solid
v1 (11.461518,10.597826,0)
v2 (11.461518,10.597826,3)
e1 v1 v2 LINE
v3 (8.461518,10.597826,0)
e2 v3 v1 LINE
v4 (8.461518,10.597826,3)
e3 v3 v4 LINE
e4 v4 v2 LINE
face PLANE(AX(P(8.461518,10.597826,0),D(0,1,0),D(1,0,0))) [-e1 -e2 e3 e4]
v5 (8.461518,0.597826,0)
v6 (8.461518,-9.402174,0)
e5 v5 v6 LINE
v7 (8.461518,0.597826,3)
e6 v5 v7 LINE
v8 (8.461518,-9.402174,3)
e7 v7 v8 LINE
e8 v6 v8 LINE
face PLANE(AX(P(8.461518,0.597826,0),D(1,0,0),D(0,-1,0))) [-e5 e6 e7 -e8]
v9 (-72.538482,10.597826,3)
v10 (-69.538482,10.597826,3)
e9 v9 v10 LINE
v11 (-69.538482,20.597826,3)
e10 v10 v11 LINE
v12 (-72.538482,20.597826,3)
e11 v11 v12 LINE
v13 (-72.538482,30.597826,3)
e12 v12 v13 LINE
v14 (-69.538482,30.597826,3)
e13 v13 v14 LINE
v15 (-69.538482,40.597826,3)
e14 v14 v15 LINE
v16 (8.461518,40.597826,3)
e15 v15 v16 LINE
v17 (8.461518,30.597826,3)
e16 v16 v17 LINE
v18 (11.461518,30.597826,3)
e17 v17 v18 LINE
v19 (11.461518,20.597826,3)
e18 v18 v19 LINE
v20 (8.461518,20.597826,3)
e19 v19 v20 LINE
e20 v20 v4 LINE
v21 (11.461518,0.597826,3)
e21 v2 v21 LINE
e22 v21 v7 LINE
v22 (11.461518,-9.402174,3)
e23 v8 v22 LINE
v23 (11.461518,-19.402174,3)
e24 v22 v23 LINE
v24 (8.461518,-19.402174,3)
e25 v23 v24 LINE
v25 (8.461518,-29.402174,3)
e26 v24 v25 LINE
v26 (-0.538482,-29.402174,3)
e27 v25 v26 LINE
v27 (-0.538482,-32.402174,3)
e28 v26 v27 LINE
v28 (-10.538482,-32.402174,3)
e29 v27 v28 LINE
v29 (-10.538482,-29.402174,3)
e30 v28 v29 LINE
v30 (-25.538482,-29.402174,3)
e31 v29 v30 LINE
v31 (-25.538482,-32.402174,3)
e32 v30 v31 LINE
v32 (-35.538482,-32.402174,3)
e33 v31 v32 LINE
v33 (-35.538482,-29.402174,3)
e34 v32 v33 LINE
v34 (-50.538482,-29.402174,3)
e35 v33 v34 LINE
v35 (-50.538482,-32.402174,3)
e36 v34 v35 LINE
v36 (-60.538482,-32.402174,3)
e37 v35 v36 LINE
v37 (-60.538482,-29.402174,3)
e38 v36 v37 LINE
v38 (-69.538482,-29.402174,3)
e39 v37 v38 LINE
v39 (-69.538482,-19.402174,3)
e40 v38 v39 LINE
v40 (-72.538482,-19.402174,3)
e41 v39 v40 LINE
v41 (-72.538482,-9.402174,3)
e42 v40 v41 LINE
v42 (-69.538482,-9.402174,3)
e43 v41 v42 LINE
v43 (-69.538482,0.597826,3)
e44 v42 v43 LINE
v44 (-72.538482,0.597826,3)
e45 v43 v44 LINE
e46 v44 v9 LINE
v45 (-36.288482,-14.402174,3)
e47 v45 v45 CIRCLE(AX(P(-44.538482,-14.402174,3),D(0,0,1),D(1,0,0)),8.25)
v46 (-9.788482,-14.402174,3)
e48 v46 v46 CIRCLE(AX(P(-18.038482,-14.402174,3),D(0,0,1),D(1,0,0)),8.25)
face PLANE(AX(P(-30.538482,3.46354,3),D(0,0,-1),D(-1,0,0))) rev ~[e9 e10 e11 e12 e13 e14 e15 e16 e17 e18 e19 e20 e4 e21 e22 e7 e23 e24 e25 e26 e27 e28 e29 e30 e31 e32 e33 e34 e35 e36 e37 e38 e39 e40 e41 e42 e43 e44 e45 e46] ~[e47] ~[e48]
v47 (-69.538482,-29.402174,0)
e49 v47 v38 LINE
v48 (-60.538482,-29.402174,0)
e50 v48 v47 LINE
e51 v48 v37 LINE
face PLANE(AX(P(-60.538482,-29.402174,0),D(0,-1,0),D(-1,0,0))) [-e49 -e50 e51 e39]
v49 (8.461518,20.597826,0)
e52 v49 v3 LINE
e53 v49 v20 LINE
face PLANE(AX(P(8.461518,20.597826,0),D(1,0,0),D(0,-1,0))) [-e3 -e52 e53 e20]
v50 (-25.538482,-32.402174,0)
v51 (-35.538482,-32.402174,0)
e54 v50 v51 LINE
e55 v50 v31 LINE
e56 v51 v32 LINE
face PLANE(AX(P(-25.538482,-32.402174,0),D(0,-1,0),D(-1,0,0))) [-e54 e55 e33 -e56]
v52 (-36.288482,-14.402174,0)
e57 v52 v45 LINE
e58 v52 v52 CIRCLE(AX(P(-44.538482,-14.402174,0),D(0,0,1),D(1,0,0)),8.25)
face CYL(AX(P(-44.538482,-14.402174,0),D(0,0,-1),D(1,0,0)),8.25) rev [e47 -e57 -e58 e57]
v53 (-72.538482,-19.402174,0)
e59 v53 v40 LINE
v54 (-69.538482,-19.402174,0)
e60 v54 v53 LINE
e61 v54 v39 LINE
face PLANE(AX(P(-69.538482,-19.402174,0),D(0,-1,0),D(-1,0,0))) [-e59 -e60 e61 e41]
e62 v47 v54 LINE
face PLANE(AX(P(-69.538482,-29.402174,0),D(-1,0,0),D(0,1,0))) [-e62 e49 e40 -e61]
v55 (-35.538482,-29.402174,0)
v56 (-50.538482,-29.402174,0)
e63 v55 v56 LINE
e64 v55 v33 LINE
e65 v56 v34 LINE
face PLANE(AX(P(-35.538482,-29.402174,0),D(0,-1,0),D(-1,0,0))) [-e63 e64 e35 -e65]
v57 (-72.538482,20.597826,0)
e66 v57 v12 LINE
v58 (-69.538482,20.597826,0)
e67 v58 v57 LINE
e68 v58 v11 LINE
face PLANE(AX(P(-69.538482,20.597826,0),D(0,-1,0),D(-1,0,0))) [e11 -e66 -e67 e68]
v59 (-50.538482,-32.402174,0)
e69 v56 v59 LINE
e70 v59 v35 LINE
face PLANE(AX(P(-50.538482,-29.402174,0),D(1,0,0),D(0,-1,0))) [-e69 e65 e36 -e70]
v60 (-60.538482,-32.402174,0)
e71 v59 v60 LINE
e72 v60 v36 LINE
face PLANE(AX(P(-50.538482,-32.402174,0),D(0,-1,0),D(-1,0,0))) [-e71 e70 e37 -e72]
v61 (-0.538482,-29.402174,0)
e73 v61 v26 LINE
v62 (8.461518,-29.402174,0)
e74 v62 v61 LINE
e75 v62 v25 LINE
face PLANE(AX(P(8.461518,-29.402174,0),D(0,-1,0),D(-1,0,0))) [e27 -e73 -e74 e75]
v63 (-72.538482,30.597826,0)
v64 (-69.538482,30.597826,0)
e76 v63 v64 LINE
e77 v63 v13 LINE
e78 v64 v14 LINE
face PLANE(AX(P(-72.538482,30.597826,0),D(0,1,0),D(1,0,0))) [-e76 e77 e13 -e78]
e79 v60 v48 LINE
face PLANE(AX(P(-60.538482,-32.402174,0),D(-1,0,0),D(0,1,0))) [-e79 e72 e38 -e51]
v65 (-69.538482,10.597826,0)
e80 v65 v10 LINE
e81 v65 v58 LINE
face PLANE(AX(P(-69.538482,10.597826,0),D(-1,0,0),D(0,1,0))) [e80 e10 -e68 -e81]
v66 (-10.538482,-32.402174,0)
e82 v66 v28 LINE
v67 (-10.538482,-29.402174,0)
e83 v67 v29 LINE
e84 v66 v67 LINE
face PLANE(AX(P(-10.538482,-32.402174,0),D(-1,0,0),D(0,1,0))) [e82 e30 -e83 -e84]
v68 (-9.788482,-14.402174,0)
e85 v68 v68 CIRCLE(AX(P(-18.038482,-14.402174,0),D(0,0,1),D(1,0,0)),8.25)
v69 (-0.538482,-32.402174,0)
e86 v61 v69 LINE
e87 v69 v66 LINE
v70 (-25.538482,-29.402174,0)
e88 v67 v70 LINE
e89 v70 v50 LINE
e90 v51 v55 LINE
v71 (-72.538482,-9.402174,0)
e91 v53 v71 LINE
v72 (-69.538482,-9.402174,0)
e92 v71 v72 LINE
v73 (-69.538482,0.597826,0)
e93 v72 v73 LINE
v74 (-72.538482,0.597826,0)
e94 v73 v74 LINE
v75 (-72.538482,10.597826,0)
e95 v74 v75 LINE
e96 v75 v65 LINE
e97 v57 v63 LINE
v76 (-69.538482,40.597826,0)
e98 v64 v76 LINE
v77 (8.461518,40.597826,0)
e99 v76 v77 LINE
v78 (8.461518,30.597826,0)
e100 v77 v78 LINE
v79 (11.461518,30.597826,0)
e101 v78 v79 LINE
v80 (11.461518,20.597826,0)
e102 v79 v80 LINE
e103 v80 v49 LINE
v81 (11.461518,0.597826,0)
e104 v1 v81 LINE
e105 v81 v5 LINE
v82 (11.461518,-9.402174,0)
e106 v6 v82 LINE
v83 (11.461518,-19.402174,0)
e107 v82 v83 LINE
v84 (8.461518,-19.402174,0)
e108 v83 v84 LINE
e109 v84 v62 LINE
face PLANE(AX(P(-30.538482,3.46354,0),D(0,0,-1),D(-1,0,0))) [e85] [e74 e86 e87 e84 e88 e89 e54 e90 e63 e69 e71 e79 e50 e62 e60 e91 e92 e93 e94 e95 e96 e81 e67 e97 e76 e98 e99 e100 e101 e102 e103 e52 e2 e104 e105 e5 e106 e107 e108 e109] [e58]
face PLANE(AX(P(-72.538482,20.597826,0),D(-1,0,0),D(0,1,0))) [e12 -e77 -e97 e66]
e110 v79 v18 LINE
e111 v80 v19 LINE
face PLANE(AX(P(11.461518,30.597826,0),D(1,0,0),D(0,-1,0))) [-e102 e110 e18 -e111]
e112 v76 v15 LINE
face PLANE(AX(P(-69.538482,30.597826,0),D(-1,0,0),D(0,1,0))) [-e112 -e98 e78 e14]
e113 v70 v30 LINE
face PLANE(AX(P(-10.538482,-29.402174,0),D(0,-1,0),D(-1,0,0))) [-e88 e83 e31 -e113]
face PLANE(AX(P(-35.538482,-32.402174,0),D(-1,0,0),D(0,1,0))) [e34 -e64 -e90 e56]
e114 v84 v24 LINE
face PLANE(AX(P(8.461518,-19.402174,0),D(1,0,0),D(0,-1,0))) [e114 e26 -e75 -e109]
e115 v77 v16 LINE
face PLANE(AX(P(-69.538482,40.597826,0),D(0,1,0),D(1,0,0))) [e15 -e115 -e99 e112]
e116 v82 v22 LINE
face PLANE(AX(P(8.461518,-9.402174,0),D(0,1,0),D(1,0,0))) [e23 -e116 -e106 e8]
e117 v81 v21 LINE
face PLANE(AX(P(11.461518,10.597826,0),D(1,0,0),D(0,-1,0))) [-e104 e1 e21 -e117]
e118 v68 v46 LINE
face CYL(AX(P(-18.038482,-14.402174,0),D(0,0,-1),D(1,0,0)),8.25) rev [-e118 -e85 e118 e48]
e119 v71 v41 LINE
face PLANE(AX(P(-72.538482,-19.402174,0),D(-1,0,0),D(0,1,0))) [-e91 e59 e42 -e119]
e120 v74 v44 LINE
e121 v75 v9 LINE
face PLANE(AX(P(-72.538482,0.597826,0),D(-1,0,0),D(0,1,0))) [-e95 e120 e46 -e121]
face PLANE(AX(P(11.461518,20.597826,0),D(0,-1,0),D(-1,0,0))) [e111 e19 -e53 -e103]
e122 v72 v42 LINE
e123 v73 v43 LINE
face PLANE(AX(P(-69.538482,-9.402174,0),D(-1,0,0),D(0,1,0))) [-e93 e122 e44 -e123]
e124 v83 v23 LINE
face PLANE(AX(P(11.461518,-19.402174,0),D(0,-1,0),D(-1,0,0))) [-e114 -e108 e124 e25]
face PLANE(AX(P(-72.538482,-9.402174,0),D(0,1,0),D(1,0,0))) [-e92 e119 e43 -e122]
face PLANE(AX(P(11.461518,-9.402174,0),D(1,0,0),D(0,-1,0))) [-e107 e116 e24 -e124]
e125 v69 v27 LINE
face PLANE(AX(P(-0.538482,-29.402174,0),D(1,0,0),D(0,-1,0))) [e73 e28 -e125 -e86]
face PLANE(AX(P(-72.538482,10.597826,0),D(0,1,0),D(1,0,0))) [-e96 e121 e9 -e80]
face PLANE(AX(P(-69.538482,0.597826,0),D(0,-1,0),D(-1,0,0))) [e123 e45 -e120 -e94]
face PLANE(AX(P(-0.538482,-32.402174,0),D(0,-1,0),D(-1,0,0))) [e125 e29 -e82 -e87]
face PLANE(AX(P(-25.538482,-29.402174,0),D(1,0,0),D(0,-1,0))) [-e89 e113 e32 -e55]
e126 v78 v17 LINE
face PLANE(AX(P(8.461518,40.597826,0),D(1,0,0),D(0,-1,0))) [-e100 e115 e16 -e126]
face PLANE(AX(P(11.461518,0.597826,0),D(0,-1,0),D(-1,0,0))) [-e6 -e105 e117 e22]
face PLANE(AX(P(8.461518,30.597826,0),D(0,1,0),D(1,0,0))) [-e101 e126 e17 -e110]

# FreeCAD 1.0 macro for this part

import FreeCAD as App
import Part
import Sketcher

doc = App.newDocument("Part")
params = doc.addObject("Spreadsheet::Sheet", "Params")
for row, (alias, value) in enumerate([
    ("sketch1_diameter", "16.5 mm"),
    ("sketch1_width", "78 mm"),
    ("sketch1_width2", "3 mm"),
    ("sketch1_width3", "9 mm"),
    ("sketch1_width4", "10 mm"),
    ("pad1_length", "3 mm"),
], start=1):
    params.set(f"A{row}", alias)
    params.set(f"B{row}", "=" + value)
    params.setAlias(f"B{row}", alias)

body = doc.addObject("PartDesign::Body", "Body")

sketch1 = body.newObject("Sketcher::SketchObject", "Sketch")
sketch1.AttachmentSupport = (doc.getObject("XY_Plane"), [""])
sketch1.MapMode = "FlatFace"
sketch1.addGeometry(Part.LineSegment(App.Vector(8.5, 40.6, 0), App.Vector(-69.5, 40.6, 0)), False)
sketch1.addGeometry(Part.LineSegment(App.Vector(-69.5, 40.6, 0), App.Vector(-69.5, 30.6, 0)), False)
sketch1.addGeometry(Part.LineSegment(App.Vector(-69.5, 30.6, 0), App.Vector(-72.5, 30.6, 0)), False)
sketch1.addGeometry(Part.LineSegment(App.Vector(-72.5, 30.6, 0), App.Vector(-72.5, 20.6, 0)), False)
sketch1.addGeometry(Part.LineSegment(App.Vector(-72.5, 20.6, 0), App.Vector(-69.5, 20.6, 0)), False)
sketch1.addGeometry(Part.LineSegment(App.Vector(-69.5, 20.6, 0), App.Vector(-69.5, 10.6, 0)), False)
sketch1.addGeometry(Part.LineSegment(App.Vector(-69.5, 10.6, 0), App.Vector(-72.5, 10.6, 0)), False)
sketch1.addGeometry(Part.LineSegment(App.Vector(-72.5, 10.6, 0), App.Vector(-72.5, 0.6, 0)), False)
sketch1.addGeometry(Part.LineSegment(App.Vector(-72.5, 0.6, 0), App.Vector(-69.5, 0.6, 0)), False)
sketch1.addGeometry(Part.LineSegment(App.Vector(-69.5, 0.6, 0), App.Vector(-69.5, -9.4, 0)), False)
sketch1.addGeometry(Part.LineSegment(App.Vector(-69.5, -9.4, 0), App.Vector(-72.5, -9.4, 0)), False)
sketch1.addGeometry(Part.LineSegment(App.Vector(-72.5, -9.4, 0), App.Vector(-72.5, -19.4, 0)), False)
sketch1.addGeometry(Part.LineSegment(App.Vector(-72.5, -19.4, 0), App.Vector(-69.5, -19.4, 0)), False)
sketch1.addGeometry(Part.LineSegment(App.Vector(-69.5, -19.4, 0), App.Vector(-69.5, -29.4, 0)), False)
sketch1.addGeometry(Part.LineSegment(App.Vector(-69.5, -29.4, 0), App.Vector(-60.5, -29.4, 0)), False)
sketch1.addGeometry(Part.LineSegment(App.Vector(-60.5, -29.4, 0), App.Vector(-60.5, -32.4, 0)), False)
sketch1.addGeometry(Part.LineSegment(App.Vector(-60.5, -32.4, 0), App.Vector(-50.5, -32.4, 0)), False)
sketch1.addGeometry(Part.LineSegment(App.Vector(-50.5, -32.4, 0), App.Vector(-50.5, -29.4, 0)), False)
sketch1.addGeometry(Part.LineSegment(App.Vector(-50.5, -29.4, 0), App.Vector(-35.5, -29.4, 0)), False)
sketch1.addGeometry(Part.LineSegment(App.Vector(-35.5, -29.4, 0), App.Vector(-35.5, -32.4, 0)), False)
sketch1.addGeometry(Part.LineSegment(App.Vector(-35.5, -32.4, 0), App.Vector(-25.5, -32.4, 0)), False)
sketch1.addGeometry(Part.LineSegment(App.Vector(-25.5, -32.4, 0), App.Vector(-25.5, -29.4, 0)), False)
sketch1.addGeometry(Part.LineSegment(App.Vector(-25.5, -29.4, 0), App.Vector(-10.5, -29.4, 0)), False)
sketch1.addGeometry(Part.LineSegment(App.Vector(-10.5, -29.4, 0), App.Vector(-10.5, -32.4, 0)), False)
sketch1.addGeometry(Part.LineSegment(App.Vector(-10.5, -32.4, 0), App.Vector(-0.5, -32.4, 0)), False)
sketch1.addGeometry(Part.LineSegment(App.Vector(-0.5, -32.4, 0), App.Vector(-0.5, -29.4, 0)), False)
sketch1.addGeometry(Part.LineSegment(App.Vector(-0.5, -29.4, 0), App.Vector(8.5, -29.4, 0)), False)
sketch1.addGeometry(Part.LineSegment(App.Vector(8.5, -29.4, 0), App.Vector(8.5, -19.4, 0)), False)
sketch1.addGeometry(Part.LineSegment(App.Vector(8.5, -19.4, 0), App.Vector(11.5, -19.4, 0)), False)
sketch1.addGeometry(Part.LineSegment(App.Vector(11.5, -19.4, 0), App.Vector(11.5, -9.4, 0)), False)
sketch1.addGeometry(Part.LineSegment(App.Vector(11.5, -9.4, 0), App.Vector(8.5, -9.4, 0)), False)
sketch1.addGeometry(Part.LineSegment(App.Vector(8.5, -9.4, 0), App.Vector(8.5, 0.6, 0)), False)
sketch1.addGeometry(Part.LineSegment(App.Vector(8.5, 0.6, 0), App.Vector(11.5, 0.6, 0)), False)
sketch1.addGeometry(Part.LineSegment(App.Vector(11.5, 0.6, 0), App.Vector(11.5, 10.6, 0)), False)
sketch1.addGeometry(Part.LineSegment(App.Vector(11.5, 10.6, 0), App.Vector(8.5, 10.6, 0)), False)
sketch1.addGeometry(Part.LineSegment(App.Vector(8.5, 10.6, 0), App.Vector(8.5, 20.6, 0)), False)
sketch1.addGeometry(Part.LineSegment(App.Vector(8.5, 20.6, 0), App.Vector(11.5, 20.6, 0)), False)
sketch1.addGeometry(Part.LineSegment(App.Vector(11.5, 20.6, 0), App.Vector(11.5, 30.6, 0)), False)
sketch1.addGeometry(Part.LineSegment(App.Vector(11.5, 30.6, 0), App.Vector(8.5, 30.6, 0)), False)
sketch1.addGeometry(Part.LineSegment(App.Vector(8.5, 30.6, 0), App.Vector(8.5, 40.6, 0)), False)
sketch1.addGeometry(Part.Circle(App.Vector(-18, -14.4, 0), App.Vector(0, 0, 1), 8.2), False)
sketch1.addGeometry(Part.Circle(App.Vector(-44.5, -14.4, 0), App.Vector(0, 0, 1), 8.2), False)
sketch1.addConstraint(Sketcher.Constraint("Coincident", 0, 2, 1, 1))
sketch1.addConstraint(Sketcher.Constraint("Coincident", 1, 2, 2, 1))
sketch1.addConstraint(Sketcher.Constraint("Coincident", 2, 2, 3, 1))
sketch1.addConstraint(Sketcher.Constraint("Coincident", 3, 2, 4, 1))
sketch1.addConstraint(Sketcher.Constraint("Coincident", 4, 2, 5, 1))
sketch1.addConstraint(Sketcher.Constraint("Coincident", 5, 2, 6, 1))
sketch1.addConstraint(Sketcher.Constraint("Coincident", 6, 2, 7, 1))
sketch1.addConstraint(Sketcher.Constraint("Coincident", 7, 2, 8, 1))
sketch1.addConstraint(Sketcher.Constraint("Coincident", 8, 2, 9, 1))
sketch1.addConstraint(Sketcher.Constraint("Coincident", 9, 2, 10, 1))
sketch1.addConstraint(Sketcher.Constraint("Coincident", 10, 2, 11, 1))
sketch1.addConstraint(Sketcher.Constraint("Coincident", 11, 2, 12, 1))
sketch1.addConstraint(Sketcher.Constraint("Coincident", 12, 2, 13, 1))
sketch1.addConstraint(Sketcher.Constraint("Coincident", 13, 2, 14, 1))
sketch1.addConstraint(Sketcher.Constraint("Coincident", 14, 2, 15, 1))
sketch1.addConstraint(Sketcher.Constraint("Coincident", 15, 2, 16, 1))
sketch1.addConstraint(Sketcher.Constraint("Coincident", 16, 2, 17, 1))
sketch1.addConstraint(Sketcher.Constraint("Coincident", 17, 2, 18, 1))
sketch1.addConstraint(Sketcher.Constraint("Coincident", 18, 2, 19, 1))
sketch1.addConstraint(Sketcher.Constraint("Coincident", 19, 2, 20, 1))
sketch1.addConstraint(Sketcher.Constraint("Coincident", 20, 2, 21, 1))
sketch1.addConstraint(Sketcher.Constraint("Coincident", 21, 2, 22, 1))
sketch1.addConstraint(Sketcher.Constraint("Coincident", 22, 2, 23, 1))
sketch1.addConstraint(Sketcher.Constraint("Coincident", 23, 2, 24, 1))
sketch1.addConstraint(Sketcher.Constraint("Coincident", 24, 2, 25, 1))
sketch1.addConstraint(Sketcher.Constraint("Coincident", 25, 2, 26, 1))
sketch1.addConstraint(Sketcher.Constraint("Coincident", 26, 2, 27, 1))
sketch1.addConstraint(Sketcher.Constraint("Coincident", 27, 2, 28, 1))
sketch1.addConstraint(Sketcher.Constraint("Coincident", 28, 2, 29, 1))
sketch1.addConstraint(Sketcher.Constraint("Coincident", 29, 2, 30, 1))
sketch1.addConstraint(Sketcher.Constraint("Coincident", 30, 2, 31, 1))
sketch1.addConstraint(Sketcher.Constraint("Coincident", 31, 2, 32, 1))
sketch1.addConstraint(Sketcher.Constraint("Coincident", 32, 2, 33, 1))
sketch1.addConstraint(Sketcher.Constraint("Coincident", 33, 2, 34, 1))
sketch1.addConstraint(Sketcher.Constraint("Coincident", 34, 2, 35, 1))
sketch1.addConstraint(Sketcher.Constraint("Coincident", 35, 2, 36, 1))
sketch1.addConstraint(Sketcher.Constraint("Coincident", 36, 2, 37, 1))
sketch1.addConstraint(Sketcher.Constraint("Coincident", 37, 2, 38, 1))
sketch1.addConstraint(Sketcher.Constraint("Coincident", 38, 2, 39, 1))
sketch1.addConstraint(Sketcher.Constraint("Coincident", 39, 2, 0, 1))
sketch1.addConstraint(Sketcher.Constraint("Horizontal", 0))
sketch1.addConstraint(Sketcher.Constraint("Vertical", 1))
sketch1.addConstraint(Sketcher.Constraint("Horizontal", 2))
sketch1.addConstraint(Sketcher.Constraint("Vertical", 3))
sketch1.addConstraint(Sketcher.Constraint("Horizontal", 4))
sketch1.addConstraint(Sketcher.Constraint("Vertical", 5))
sketch1.addConstraint(Sketcher.Constraint("Horizontal", 6))
sketch1.addConstraint(Sketcher.Constraint("Vertical", 7))
sketch1.addConstraint(Sketcher.Constraint("Horizontal", 8))
sketch1.addConstraint(Sketcher.Constraint("Vertical", 9))
sketch1.addConstraint(Sketcher.Constraint("Horizontal", 10))
sketch1.addConstraint(Sketcher.Constraint("Vertical", 11))
sketch1.addConstraint(Sketcher.Constraint("Horizontal", 12))
sketch1.addConstraint(Sketcher.Constraint("Vertical", 13))
sketch1.addConstraint(Sketcher.Constraint("Horizontal", 14))
sketch1.addConstraint(Sketcher.Constraint("Vertical", 15))
sketch1.addConstraint(Sketcher.Constraint("Horizontal", 16))
sketch1.addConstraint(Sketcher.Constraint("Vertical", 17))
sketch1.addConstraint(Sketcher.Constraint("Horizontal", 18))
sketch1.addConstraint(Sketcher.Constraint("Vertical", 19))
sketch1.addConstraint(Sketcher.Constraint("Horizontal", 20))
sketch1.addConstraint(Sketcher.Constraint("Vertical", 21))
sketch1.addConstraint(Sketcher.Constraint("Horizontal", 22))
sketch1.addConstraint(Sketcher.Constraint("Vertical", 23))
sketch1.addConstraint(Sketcher.Constraint("Horizontal", 24))
sketch1.addConstraint(Sketcher.Constraint("Vertical", 25))
sketch1.addConstraint(Sketcher.Constraint("Horizontal", 26))
sketch1.addConstraint(Sketcher.Constraint("Vertical", 27))
sketch1.addConstraint(Sketcher.Constraint("Horizontal", 28))
sketch1.addConstraint(Sketcher.Constraint("Vertical", 29))
sketch1.addConstraint(Sketcher.Constraint("Horizontal", 30))
sketch1.addConstraint(Sketcher.Constraint("Vertical", 31))
sketch1.addConstraint(Sketcher.Constraint("Horizontal", 32))
sketch1.addConstraint(Sketcher.Constraint("Vertical", 33))
sketch1.addConstraint(Sketcher.Constraint("Horizontal", 34))
sketch1.addConstraint(Sketcher.Constraint("Vertical", 35))
sketch1.addConstraint(Sketcher.Constraint("Horizontal", 36))
sketch1.addConstraint(Sketcher.Constraint("Vertical", 37))
sketch1.addConstraint(Sketcher.Constraint("Horizontal", 38))
sketch1.addConstraint(Sketcher.Constraint("Vertical", 39))
sketch1.addConstraint(Sketcher.Constraint("Equal", 40, 41))
sketch1.addConstraint(Sketcher.Constraint("Horizontal", 40, 3, 41, 3))
sketch1.addConstraint(Sketcher.Constraint("Horizontal", 14, 2, 17, 2))
sketch1.addConstraint(Sketcher.Constraint("Horizontal", 16, 2, 19, 2))
sketch1.addConstraint(Sketcher.Constraint("Horizontal", 18, 2, 21, 2))
sketch1.addConstraint(Sketcher.Constraint("Horizontal", 20, 2, 23, 2))
sketch1.addConstraint(Sketcher.Constraint("Horizontal", 22, 2, 25, 2))
sketch1.addConstraint(Sketcher.Constraint("Horizontal", 12, 2, 27, 2))
sketch1.addConstraint(Sketcher.Constraint("Horizontal", 10, 2, 29, 2))
sketch1.addConstraint(Sketcher.Constraint("Horizontal", 8, 2, 31, 2))
sketch1.addConstraint(Sketcher.Constraint("Horizontal", 6, 2, 33, 2))
sketch1.addConstraint(Sketcher.Constraint("Horizontal", 4, 2, 35, 2))
sketch1.addConstraint(Sketcher.Constraint("Horizontal", 2, 2, 37, 2))
sketch1.addConstraint(Sketcher.Constraint("Vertical", 1, 2, 4, 2))
sketch1.addConstraint(Sketcher.Constraint("Vertical", 3, 2, 6, 2))
sketch1.addConstraint(Sketcher.Constraint("Vertical", 5, 2, 8, 2))
sketch1.addConstraint(Sketcher.Constraint("Vertical", 7, 2, 10, 2))
sketch1.addConstraint(Sketcher.Constraint("Vertical", 9, 2, 12, 2))
sketch1.addConstraint(Sketcher.Constraint("Vertical", 27, 2, 30, 2))
sketch1.addConstraint(Sketcher.Constraint("Vertical", 29, 2, 32, 2))
sketch1.addConstraint(Sketcher.Constraint("Vertical", 31, 2, 34, 2))
sketch1.addConstraint(Sketcher.Constraint("Vertical", 33, 2, 36, 2))
sketch1.addConstraint(Sketcher.Constraint("Vertical", 35, 2, 38, 2))
sketch1.addConstraint(Sketcher.Constraint("Equal", 16, 20))
sketch1.addConstraint(Sketcher.Constraint("Equal", 18, 22))
sketch1.addConstraint(Sketcher.Constraint("Equal", 20, 24))
sketch1.addConstraint(Sketcher.Constraint("Equal", 14, 26))
sketch1.addConstraint(Sketcher.Constraint("Equal", 12, 28))
sketch1.addConstraint(Sketcher.Constraint("Equal", 24, 1))
sketch1.addConstraint(Sketcher.Constraint("Equal", 1, 3))
sketch1.addConstraint(Sketcher.Constraint("Equal", 3, 5))
sketch1.addConstraint(Sketcher.Constraint("Equal", 5, 7))
sketch1.addConstraint(Sketcher.Constraint("Equal", 7, 9))
sketch1.addConstraint(Sketcher.Constraint("Equal", 9, 11))
sketch1.addConstraint(Sketcher.Constraint("Equal", 11, 13))
sketch1.addConstraint(Sketcher.Constraint("Equal", 38, 15))
sketch1.addConstraint(Sketcher.Constraint("Diameter", 40, 16.5))
sketch1.addConstraint(Sketcher.Constraint("DistanceX", 0, 2, 0, 1, 78.0))
sketch1.addConstraint(Sketcher.Constraint("DistanceX", 2, 2, 2, 1, 3.0))
sketch1.addConstraint(Sketcher.Constraint("DistanceX", 14, 1, 14, 2, 9.0))
sketch1.addConstraint(Sketcher.Constraint("DistanceX", 16, 1, 16, 2, 10.0))
sketch1.addConstraint(Sketcher.Constraint("DistanceX", 0, 2, 41, 3, 25.0))
sketch1.addConstraint(Sketcher.Constraint("DistanceY", 41, 3, 0, 2, 55.0))
sketch1.addConstraint(Sketcher.Constraint("DistanceX", 41, 3, 40, 3, 26.5))
sketch1.addConstraint(Sketcher.Constraint("DistanceX", 40, 3, -1, 1, 18.038482))
sketch1.addConstraint(Sketcher.Constraint("DistanceY", 40, 3, -1, 1, 14.402174))
sketch1.setExpression("Constraints[116]", "Params.sketch1_diameter")
sketch1.setExpression("Constraints[117]", "Params.sketch1_width")
sketch1.setExpression("Constraints[118]", "Params.sketch1_width2")
sketch1.setExpression("Constraints[119]", "Params.sketch1_width3")
sketch1.setExpression("Constraints[120]", "Params.sketch1_width4")
pad1 = body.newObject("PartDesign::Pad", "Pad")
pad1.Profile = sketch1
pad1.setExpression("Length", "Params.pad1_length")

doc.recompute()
